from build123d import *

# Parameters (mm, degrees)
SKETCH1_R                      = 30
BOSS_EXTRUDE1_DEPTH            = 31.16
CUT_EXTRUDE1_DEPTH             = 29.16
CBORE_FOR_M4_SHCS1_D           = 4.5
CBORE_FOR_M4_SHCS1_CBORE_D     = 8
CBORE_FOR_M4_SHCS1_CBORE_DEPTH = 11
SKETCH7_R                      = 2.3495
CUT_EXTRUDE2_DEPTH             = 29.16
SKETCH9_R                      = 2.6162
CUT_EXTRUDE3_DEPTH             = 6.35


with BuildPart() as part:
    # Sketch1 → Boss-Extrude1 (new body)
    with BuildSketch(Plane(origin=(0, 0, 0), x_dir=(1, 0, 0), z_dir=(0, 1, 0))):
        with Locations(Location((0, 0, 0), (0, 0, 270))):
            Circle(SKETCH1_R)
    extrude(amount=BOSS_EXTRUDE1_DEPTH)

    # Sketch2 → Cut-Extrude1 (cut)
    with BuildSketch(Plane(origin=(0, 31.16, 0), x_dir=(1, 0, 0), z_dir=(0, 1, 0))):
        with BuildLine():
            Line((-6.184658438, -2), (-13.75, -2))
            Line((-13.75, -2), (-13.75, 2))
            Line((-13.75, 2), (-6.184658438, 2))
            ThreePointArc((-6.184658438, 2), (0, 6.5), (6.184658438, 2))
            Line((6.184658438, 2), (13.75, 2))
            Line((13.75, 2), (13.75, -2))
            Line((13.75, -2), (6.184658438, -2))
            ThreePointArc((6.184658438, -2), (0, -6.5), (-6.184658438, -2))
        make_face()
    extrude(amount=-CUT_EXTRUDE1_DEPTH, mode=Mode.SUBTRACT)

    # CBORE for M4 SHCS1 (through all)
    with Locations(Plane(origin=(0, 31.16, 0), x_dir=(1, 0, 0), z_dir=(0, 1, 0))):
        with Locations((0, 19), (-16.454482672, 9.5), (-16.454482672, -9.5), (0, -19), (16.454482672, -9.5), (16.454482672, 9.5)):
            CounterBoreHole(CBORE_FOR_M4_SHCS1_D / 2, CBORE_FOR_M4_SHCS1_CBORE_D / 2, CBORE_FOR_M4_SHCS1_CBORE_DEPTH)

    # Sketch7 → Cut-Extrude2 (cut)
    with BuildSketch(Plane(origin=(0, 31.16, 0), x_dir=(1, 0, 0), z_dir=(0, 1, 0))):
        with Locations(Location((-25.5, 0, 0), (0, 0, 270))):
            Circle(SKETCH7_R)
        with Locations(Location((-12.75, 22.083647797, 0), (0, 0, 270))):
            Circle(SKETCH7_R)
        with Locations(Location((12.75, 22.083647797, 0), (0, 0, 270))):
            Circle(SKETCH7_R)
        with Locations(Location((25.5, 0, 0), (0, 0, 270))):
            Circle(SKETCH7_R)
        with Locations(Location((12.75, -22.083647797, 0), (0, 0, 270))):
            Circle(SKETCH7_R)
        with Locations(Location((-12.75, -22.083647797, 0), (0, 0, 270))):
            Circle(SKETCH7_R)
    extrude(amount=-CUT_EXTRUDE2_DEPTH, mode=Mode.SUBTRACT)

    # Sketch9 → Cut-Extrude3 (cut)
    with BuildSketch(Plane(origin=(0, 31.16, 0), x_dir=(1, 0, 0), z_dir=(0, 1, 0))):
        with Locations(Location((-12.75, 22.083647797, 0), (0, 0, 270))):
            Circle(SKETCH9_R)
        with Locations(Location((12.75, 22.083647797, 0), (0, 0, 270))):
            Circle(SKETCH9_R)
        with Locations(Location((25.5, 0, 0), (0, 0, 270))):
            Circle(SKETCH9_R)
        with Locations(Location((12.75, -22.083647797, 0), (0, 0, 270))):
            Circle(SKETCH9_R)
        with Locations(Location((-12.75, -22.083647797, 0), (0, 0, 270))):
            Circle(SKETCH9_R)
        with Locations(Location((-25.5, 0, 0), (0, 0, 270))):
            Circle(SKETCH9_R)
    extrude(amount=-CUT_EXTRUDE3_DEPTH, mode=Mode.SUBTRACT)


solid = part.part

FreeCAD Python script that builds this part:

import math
import FreeCAD as App
import Part
import Sketcher
Q = App.Units.Quantity

doc = App.newDocument("Part")
params = doc.addObject("Spreadsheet::Sheet", "Params")
for row, (alias, value) in enumerate([
    ("sketch1_diameter", "60 mm"),
    ("pad1_length", "31.16 mm"),
    ("sketch2_radius", "6.5 mm"),
    ("sketch2_height", "4 mm"),
    ("pocket1_length", "29.16 mm"),
    ("sketch3_diameter", "4.5 mm"),
    ("hole_diameter", "4.5 mm"),
    ("hole_cbore_diameter", "8 mm"),
    ("hole_cbore_depth", "11 mm"),
    ("pocket2_length", "29.16 mm"),
    ("pocket3_length", "6.35 mm"),
], start=1):
    params.set(f"A{row}", alias)
    params.set(f"B{row}", "=" + value)
    params.setAlias(f"B{row}", alias)

body = doc.addObject("PartDesign::Body", "Body")

# Sketch on XZ plane
sketch1 = doc.addObject("Sketcher::SketchObject", "Sketch")
body.addObject(sketch1)
sketch1.AttachmentSupport = (doc.XZ_Plane, [""])
sketch1.MapMode = "FlatFace"
sketch1.addGeometry(Part.Circle(App.Vector(0, 0, 0), App.Vector(0, 0, 1), 30), False)
sketch1.addConstraint([
    Sketcher.Constraint("Coincident", 0, 3, -1, 1),
    Sketcher.Constraint("Diameter", 0, Q("60 mm")),
])
sketch1.setExpression("Constraints[1]", "Params.sketch1_diameter")
pad1 = doc.addObject("PartDesign::Pad", "Pad")
body.addObject(pad1)
pad1.Profile = sketch1
pad1.setExpression("Length", "Params.pad1_length")
pad1.Reversed = True

# Sketch on XZ plane
sketch2 = doc.addObject("Sketcher::SketchObject", "Sketch001")
body.addObject(sketch2)
sketch2.AttachmentSupport = (doc.XZ_Plane, [""])
sketch2.MapMode = "FlatFace"
sketch2.AttachmentOffset = App.Placement(App.Vector(0, 0, -31.16), App.Rotation())
sketch2.addGeometry([
    Part.LineSegment(App.Vector(-13.8, 2, 0), App.Vector(-6.2, 2, 0)),  # 0
    Part.ArcOfCircle(Part.Circle(App.Vector(0, 0, 0), App.Vector(0, 0, 1), 6.5), math.radians(18), math.radians(162)),  # 1
    Part.LineSegment(App.Vector(6.2, 2, 0), App.Vector(13.8, 2, 0)),  # 2
    Part.LineSegment(App.Vector(13.8, 2, 0), App.Vector(13.8, -2, 0)),  # 3
    Part.LineSegment(App.Vector(13.8, -2, 0), App.Vector(6.2, -2, 0)),  # 4
    Part.ArcOfCircle(Part.Circle(App.Vector(0, 0, 0), App.Vector(0, 0, 1), 6.5), math.radians(-162), math.radians(-18)),  # 5
    Part.LineSegment(App.Vector(-6.2, -2, 0), App.Vector(-13.8, -2, 0)),  # 6
    Part.LineSegment(App.Vector(-13.8, -2, 0), App.Vector(-13.8, 2, 0)),  # 7
], False)
sketch2.addConstraint([
    Sketcher.Constraint("Coincident", 0, 2, 1, 2),
    Sketcher.Constraint("Coincident", 1, 1, 2, 1),
    Sketcher.Constraint("Coincident", 2, 2, 3, 1),
    Sketcher.Constraint("Coincident", 3, 2, 4, 1),
    Sketcher.Constraint("Coincident", 4, 2, 5, 2),
    Sketcher.Constraint("Coincident", 5, 1, 6, 1),
    Sketcher.Constraint("Coincident", 6, 2, 7, 1),
    Sketcher.Constraint("Coincident", 7, 2, 0, 1),
    Sketcher.Constraint("Horizontal", 0),
    Sketcher.Constraint("Horizontal", 2),
    Sketcher.Constraint("Vertical", 3),
    Sketcher.Constraint("Horizontal", 4),
    Sketcher.Constraint("Horizontal", 6),
    Sketcher.Constraint("Vertical", 7),
    Sketcher.Constraint("Coincident", 1, 3, -1, 1),
    Sketcher.Constraint("Coincident", 5, 3, -1, 1),
    Sketcher.Constraint("Equal", 1, 5),
    Sketcher.Constraint("Symmetric", 2, 2, 6, 2, -1, 1),
    Sketcher.Constraint("Horizontal", 0, 2, 1, 1),
    Sketcher.Constraint("Horizontal", 4, 2, 5, 1),
    Sketcher.Constraint("Radius", 1, Q("6.5 mm")),
    Sketcher.Constraint("DistanceY", 3, 2, 3, 1, Q("4 mm")),
    Sketcher.Constraint("DistanceX", -1, 1, 2, 2, Q("13.75 mm")),
])
sketch2.setExpression("Constraints[20]", "Params.sketch2_radius")
sketch2.setExpression("Constraints[21]", "Params.sketch2_height")
pocket1 = doc.addObject("PartDesign::Pocket", "Pocket")
body.addObject(pocket1)
pocket1.Profile = sketch2
pocket1.setExpression("Length", "Params.pocket1_length")
pocket1.Reversed = True

# Sketch on XZ plane
sketch3 = doc.addObject("Sketcher::SketchObject", "Sketch002")
body.addObject(sketch3)
sketch3.AttachmentSupport = (doc.XZ_Plane, [""])
sketch3.MapMode = "FlatFace"
sketch3.AttachmentOffset = App.Placement(App.Vector(0, 0, -31.16), App.Rotation())
sketch3.addGeometry([
    Part.Circle(App.Vector(0, -19, 0), App.Vector(0, 0, 1), 2.2),  # 0
    Part.Circle(App.Vector(-16.5, -9.5, 0), App.Vector(0, 0, 1), 2.2),  # 1
    Part.Circle(App.Vector(-16.5, 9.5, 0), App.Vector(0, 0, 1), 2.2),  # 2
    Part.Circle(App.Vector(0, 19, 0), App.Vector(0, 0, 1), 2.2),  # 3
    Part.Circle(App.Vector(16.5, 9.5, 0), App.Vector(0, 0, 1), 2.2),  # 4
    Part.Circle(App.Vector(16.5, -9.5, 0), App.Vector(0, 0, 1), 2.2),  # 5
], False)
sketch3.addConstraint([
    Sketcher.Constraint("Equal", 0, 1),
    Sketcher.Constraint("Equal", 1, 2),
    Sketcher.Constraint("Equal", 2, 3),
    Sketcher.Constraint("Equal", 3, 4),
    Sketcher.Constraint("Equal", 4, 5),
    Sketcher.Constraint("Symmetric", 0, 3, 3, 3, -1, 1),
    Sketcher.Constraint("Symmetric", 1, 3, 4, 3, -1, 1),
    Sketcher.Constraint("Symmetric", 2, 3, 5, 3, -1, 1),
    Sketcher.Constraint("Symmetric", 2, 3, 4, 3, -2),
    Sketcher.Constraint("PointOnObject", 0, 3, -2),
    Sketcher.Constraint("Diameter", 0, Q("4.5 mm")),
    Sketcher.Constraint("DistanceY", 0, 3, -1, 1, Q("19 mm")),
    Sketcher.Constraint("DistanceY", 1, 3, 2, 3, Q("19 mm")),
    Sketcher.Constraint("DistanceX", 1, 3, -1, 1, Q("16.454483 mm")),
])
sketch3.setExpression("Constraints[10]", "Params.sketch3_diameter")
doc.recompute()
hole = doc.addObject("PartDesign::Hole", "Hole")
body.addObject(hole)
hole.Profile = sketch3
hole.ThreadType = "None"
hole.setExpression("Diameter", "Params.hole_diameter")
hole.DepthType = "ThroughAll"
hole.HoleCutType = "Counterbore"
hole.setExpression("HoleCutDiameter", "Params.hole_cbore_diameter")
hole.setExpression("HoleCutDepth", "Params.hole_cbore_depth")
hole.Reversed = True

# Sketch on XZ plane
sketch4 = doc.addObject("Sketcher::SketchObject", "Sketch003")
body.addObject(sketch4)
sketch4.AttachmentSupport = (doc.XZ_Plane, [""])
sketch4.MapMode = "FlatFace"
sketch4.AttachmentOffset = App.Placement(App.Vector(0, 0, -31.16), App.Rotation())
sketch4.addGeometry([
    Part.Circle(App.Vector(-25.5, 0, 0), App.Vector(0, 0, 1), 2.3),  # 0
    Part.Circle(App.Vector(-12.8, -22.1, 0), App.Vector(0, 0, 1), 2.3),  # 1
    Part.Circle(App.Vector(12.8, -22.1, 0), App.Vector(0, 0, 1), 2.3),  # 2
    Part.Circle(App.Vector(25.5, 0, 0), App.Vector(0, 0, 1), 2.3),  # 3
    Part.Circle(App.Vector(12.8, 22.1, 0), App.Vector(0, 0, 1), 2.3),  # 4
    Part.Circle(App.Vector(-12.8, 22.1, 0), App.Vector(0, 0, 1), 2.3),  # 5
], False)
sketch4.addConstraint([
    Sketcher.Constraint("Equal", 0, 1),
    Sketcher.Constraint("Equal", 1, 2),
    Sketcher.Constraint("Equal", 2, 3),
    Sketcher.Constraint("Equal", 3, 4),
    Sketcher.Constraint("Equal", 4, 5),
    Sketcher.Constraint("Symmetric", 0, 3, 3, 3, -1, 1),
    Sketcher.Constraint("Symmetric", 1, 3, 4, 3, -1, 1),
    Sketcher.Constraint("Symmetric", 2, 3, 5, 3, -1, 1),
    Sketcher.Constraint("Symmetric", 1, 3, 2, 3, -2),
    Sketcher.Constraint("PointOnObject", 0, 3, -1),
    Sketcher.Constraint("Diameter", 0, Q("4.699 mm")),
    Sketcher.Constraint("DistanceX", 0, 3, 3, 3, Q("51 mm")),
    Sketcher.Constraint("DistanceX", 1, 3, 2, 3, Q("25.5 mm")),
    Sketcher.Constraint("DistanceY", 1, 3, -1, 1, Q("22.083648 mm")),
])
pocket2 = doc.addObject("PartDesign::Pocket", "Pocket001")
body.addObject(pocket2)
pocket2.Profile = sketch4
pocket2.setExpression("Length", "Params.pocket2_length")
pocket2.Reversed = True

# Sketch on XZ plane
sketch5 = doc.addObject("Sketcher::SketchObject", "Sketch004")
body.addObject(sketch5)
sketch5.AttachmentSupport = (doc.XZ_Plane, [""])
sketch5.MapMode = "FlatFace"
sketch5.AttachmentOffset = App.Placement(App.Vector(0, 0, -31.16), App.Rotation())
sketch5.addGeometry([
    Part.Circle(App.Vector(-12.8, -22.1, 0), App.Vector(0, 0, 1), 2.6),  # 0
    Part.Circle(App.Vector(12.8, -22.1, 0), App.Vector(0, 0, 1), 2.6),  # 1
    Part.Circle(App.Vector(25.5, 0, 0), App.Vector(0, 0, 1), 2.6),  # 2
    Part.Circle(App.Vector(12.8, 22.1, 0), App.Vector(0, 0, 1), 2.6),  # 3
    Part.Circle(App.Vector(-12.8, 22.1, 0), App.Vector(0, 0, 1), 2.6),  # 4
    Part.Circle(App.Vector(-25.5, 0, 0), App.Vector(0, 0, 1), 2.6),  # 5
], False)
sketch5.addConstraint([
    Sketcher.Constraint("Equal", 0, 1),
    Sketcher.Constraint("Equal", 1, 2),
    Sketcher.Constraint("Equal", 2, 3),
    Sketcher.Constraint("Equal", 3, 4),
    Sketcher.Constraint("Equal", 4, 5),
    Sketcher.Constraint("Symmetric", 0, 3, 3, 3, -1, 1),
    Sketcher.Constraint("Symmetric", 1, 3, 4, 3, -1, 1),
    Sketcher.Constraint("Symmetric", 2, 3, 5, 3, -1, 1),
    Sketcher.Constraint("Symmetric", 0, 3, 1, 3, -2),
    Sketcher.Constraint("PointOnObject", 2, 3, -1),
    Sketcher.Constraint("DistanceX", 5, 3, 2, 3, Q("51 mm")),
    Sketcher.Constraint("Diameter", 0, Q("5.2324 mm")),
    Sketcher.Constraint("DistanceX", 0, 3, 1, 3, Q("25.5 mm")),
    Sketcher.Constraint("DistanceY", 0, 3, -1, 1, Q("22.083648 mm")),
])
pocket3 = doc.addObject("PartDesign::Pocket", "Pocket002")
body.addObject(pocket3)
pocket3.Profile = sketch5
pocket3.setExpression("Length", "Params.pocket3_length")
pocket3.Reversed = True

doc.recompute()
